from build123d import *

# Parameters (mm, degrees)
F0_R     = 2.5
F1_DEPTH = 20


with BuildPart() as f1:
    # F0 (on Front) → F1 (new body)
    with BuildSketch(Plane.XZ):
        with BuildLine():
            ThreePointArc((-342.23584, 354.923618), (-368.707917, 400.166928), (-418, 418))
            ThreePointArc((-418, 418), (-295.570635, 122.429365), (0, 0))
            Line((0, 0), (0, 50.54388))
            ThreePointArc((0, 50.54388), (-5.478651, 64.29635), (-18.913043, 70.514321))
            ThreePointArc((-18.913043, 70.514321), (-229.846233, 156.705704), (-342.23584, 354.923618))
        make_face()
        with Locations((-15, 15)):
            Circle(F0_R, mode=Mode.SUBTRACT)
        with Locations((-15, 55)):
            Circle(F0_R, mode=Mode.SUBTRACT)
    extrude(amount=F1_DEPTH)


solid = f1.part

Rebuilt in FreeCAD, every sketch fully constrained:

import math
import FreeCAD as App
import Part
import Sketcher

doc = App.newDocument("Part")
params = doc.addObject("Spreadsheet::Sheet", "Params")
for row, (alias, value) in enumerate([
    ("sketch1_diameter", "5 mm"),
    ("sketch1_radius", "417.999998 mm"),
    ("sketch1_radius2", "19.999999 mm"),
    ("sketch1_radius3", "348.000002 mm"),
    ("pad1_length", "20 mm"),
], start=1):
    params.set(f"A{row}", alias)
    params.set(f"B{row}", "=" + value)
    params.setAlias(f"B{row}", alias)

body = doc.addObject("PartDesign::Body", "Body")

sketch1 = body.newObject("Sketcher::SketchObject", "Sketch")
sketch1.AttachmentSupport = (doc.getObject("XZ_Plane"), [""])
sketch1.MapMode = "FlatFace"
sketch1.addGeometry(Part.ArcOfCircle(Part.Circle(App.Vector(-418, 341, 0), App.Vector(0, 0, 1), 77), math.radians(10), math.radians(90)), False)
sketch1.addGeometry(Part.ArcOfCircle(Part.Circle(App.Vector(0, 418, 0), App.Vector(0, 0, 1), 418), math.radians(180), math.radians(270)), False)
sketch1.addGeometry(Part.LineSegment(App.Vector(0, 0, 0), App.Vector(0, 50.5, 0)), False)
sketch1.addGeometry(Part.ArcOfCircle(Part.Circle(App.Vector(-20, 50.5, 0), App.Vector(0, 0, 1), 20), math.radians(0), math.radians(87)), False)
sketch1.addGeometry(Part.ArcOfCircle(Part.Circle(App.Vector(0, 418, 0), App.Vector(0, 0, 1), 348), math.radians(-170), math.radians(-93)), False)
sketch1.addGeometry(Part.Circle(App.Vector(-15, 15, 0), App.Vector(0, 0, 1), 2.5), False)
sketch1.addGeometry(Part.Circle(App.Vector(-15, 55, 0), App.Vector(0, 0, 1), 2.5), False)
sketch1.addConstraint(Sketcher.Constraint("Coincident", 0, 2, 1, 1))
sketch1.addConstraint(Sketcher.Constraint("Coincident", 1, 2, 2, 1))
sketch1.addConstraint(Sketcher.Constraint("Tangent", 2, 2, 3, 1))
sketch1.addConstraint(Sketcher.Constraint("Tangent", 3, 2, 4, 2))
sketch1.addConstraint(Sketcher.Constraint("Tangent", 4, 1, 0, 1))
sketch1.addConstraint(Sketcher.Constraint("Vertical", 2))
sketch1.addConstraint(Sketcher.Constraint("Coincident", 4, 3, 1, 3))
sketch1.addConstraint(Sketcher.Constraint("Equal", 5, 6))
sketch1.addConstraint(Sketcher.Constraint("PointOnObject", 1, 3, -2))
sketch1.addConstraint(Sketcher.Constraint("PointOnObject", 2, 2, -2))
sketch1.addConstraint(Sketcher.Constraint("Horizontal", 4, 3, 0, 2))
sketch1.addConstraint(Sketcher.Constraint("Vertical", 5, 3, 6, 3))
sketch1.addConstraint(Sketcher.Constraint("Diameter", 5, 5.0))
sketch1.addConstraint(Sketcher.Constraint("Radius", 1, 417.999998))
sketch1.addConstraint(Sketcher.Constraint("Radius", 3, 19.999999))
sketch1.addConstraint(Sketcher.Constraint("Radius", 4, 348.000002))
sketch1.addConstraint(Sketcher.Constraint("DistanceX", 0, 3, -1, 1, 418.0))
sketch1.addConstraint(Sketcher.Constraint("DistanceY", -1, 1, 1, 3, 417.999998))
sketch1.addConstraint(Sketcher.Constraint("DistanceX", 5, 3, -1, 1, 15.0))
sketch1.addConstraint(Sketcher.Constraint("DistanceY", -1, 1, 5, 3, 15.0))
sketch1.addConstraint(Sketcher.Constraint("DistanceY", -1, 1, 6, 3, 55.0))
sketch1.setExpression("Constraints[12]", "Params.sketch1_diameter")
sketch1.setExpression("Constraints[13]", "Params.sketch1_radius")
sketch1.setExpression("Constraints[14]", "Params.sketch1_radius2")
sketch1.setExpression("Constraints[15]", "Params.sketch1_radius3")
pad1 = body.newObject("PartDesign::Pad", "Pad")
pad1.Profile = sketch1
pad1.setExpression("Length", "Params.pad1_length")

doc.recompute()
